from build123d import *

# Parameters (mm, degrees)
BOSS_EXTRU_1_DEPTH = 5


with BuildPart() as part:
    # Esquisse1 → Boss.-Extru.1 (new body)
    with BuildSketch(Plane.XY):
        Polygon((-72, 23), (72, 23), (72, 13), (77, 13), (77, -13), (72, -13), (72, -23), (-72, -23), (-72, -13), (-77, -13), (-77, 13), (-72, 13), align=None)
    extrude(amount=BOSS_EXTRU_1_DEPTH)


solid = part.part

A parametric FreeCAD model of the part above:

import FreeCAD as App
import Part
import Sketcher
Q = App.Units.Quantity

doc = App.newDocument("Part")
body = doc.addObject("PartDesign::Body", "Body")

# Sketch on XY plane
sketch1 = body.newObject("Sketcher::SketchObject", "Sketch")
sketch1.AttachmentSupport = (doc.getObject("XY_Plane"), [""])
sketch1.MapMode = "FlatFace"
sketch1.addGeometry([
    Part.LineSegment(App.Vector(72, 23, 0), App.Vector(-72, 23, 0)),  # 0
    Part.LineSegment(App.Vector(-72, 23, 0), App.Vector(-72, 13, 0)),  # 1
    Part.LineSegment(App.Vector(-72, 13, 0), App.Vector(-77, 13, 0)),  # 2
    Part.LineSegment(App.Vector(-77, 13, 0), App.Vector(-77, -13, 0)),  # 3
    Part.LineSegment(App.Vector(-77, -13, 0), App.Vector(-72, -13, 0)),  # 4
    Part.LineSegment(App.Vector(-72, -13, 0), App.Vector(-72, -23, 0)),  # 5
    Part.LineSegment(App.Vector(-72, -23, 0), App.Vector(72, -23, 0)),  # 6
    Part.LineSegment(App.Vector(72, -23, 0), App.Vector(72, -13, 0)),  # 7
    Part.LineSegment(App.Vector(72, -13, 0), App.Vector(77, -13, 0)),  # 8
    Part.LineSegment(App.Vector(77, -13, 0), App.Vector(77, 13, 0)),  # 9
    Part.LineSegment(App.Vector(77, 13, 0), App.Vector(72, 13, 0)),  # 10
    Part.LineSegment(App.Vector(72, 13, 0), App.Vector(72, 23, 0)),  # 11
], False)
sketch1.addConstraint([
    Sketcher.Constraint("Coincident", 0, 2, 1, 1),
    Sketcher.Constraint("Coincident", 1, 2, 2, 1),
    Sketcher.Constraint("Coincident", 2, 2, 3, 1),
    Sketcher.Constraint("Coincident", 3, 2, 4, 1),
    Sketcher.Constraint("Coincident", 4, 2, 5, 1),
    Sketcher.Constraint("Coincident", 5, 2, 6, 1),
    Sketcher.Constraint("Coincident", 6, 2, 7, 1),
    Sketcher.Constraint("Coincident", 7, 2, 8, 1),
    Sketcher.Constraint("Coincident", 8, 2, 9, 1),
    Sketcher.Constraint("Coincident", 9, 2, 10, 1),
    Sketcher.Constraint("Coincident", 10, 2, 11, 1),
    Sketcher.Constraint("Coincident", 11, 2, 0, 1),
    Sketcher.Constraint("Horizontal", 0),
    Sketcher.Constraint("Vertical", 1),
    Sketcher.Constraint("Horizontal", 2),
    Sketcher.Constraint("Vertical", 3),
    Sketcher.Constraint("Horizontal", 4),
    Sketcher.Constraint("Vertical", 5),
    Sketcher.Constraint("Horizontal", 6),
    Sketcher.Constraint("Vertical", 7),
    Sketcher.Constraint("Horizontal", 8),
    Sketcher.Constraint("Vertical", 9),
    Sketcher.Constraint("Horizontal", 10),
    Sketcher.Constraint("Vertical", 11),
    Sketcher.Constraint("Symmetric", 0, 2, 6, 2, -1, 1),
    Sketcher.Constraint("Symmetric", 2, 2, 8, 2, -1, 1),
    Sketcher.Constraint("Symmetric", 4, 2, 10, 2, -1, 1),
    Sketcher.Constraint("Symmetric", 4, 2, 7, 2, -2),
    Sketcher.Constraint("DistanceX", 0, 2, 0, 1, Q("144 mm")),
    Sketcher.Constraint("DistanceX", 2, 2, 2, 1, Q("5 mm")),
    Sketcher.Constraint("DistanceY", 1, 2, 1, 1, Q("10 mm")),
    Sketcher.Constraint("DistanceY", 3, 2, 3, 1, Q("26 mm")),
])
pad1 = body.newObject("PartDesign::Pad", "Pad")
pad1.Profile = sketch1
pad1.Length = 5

doc.recompute()
